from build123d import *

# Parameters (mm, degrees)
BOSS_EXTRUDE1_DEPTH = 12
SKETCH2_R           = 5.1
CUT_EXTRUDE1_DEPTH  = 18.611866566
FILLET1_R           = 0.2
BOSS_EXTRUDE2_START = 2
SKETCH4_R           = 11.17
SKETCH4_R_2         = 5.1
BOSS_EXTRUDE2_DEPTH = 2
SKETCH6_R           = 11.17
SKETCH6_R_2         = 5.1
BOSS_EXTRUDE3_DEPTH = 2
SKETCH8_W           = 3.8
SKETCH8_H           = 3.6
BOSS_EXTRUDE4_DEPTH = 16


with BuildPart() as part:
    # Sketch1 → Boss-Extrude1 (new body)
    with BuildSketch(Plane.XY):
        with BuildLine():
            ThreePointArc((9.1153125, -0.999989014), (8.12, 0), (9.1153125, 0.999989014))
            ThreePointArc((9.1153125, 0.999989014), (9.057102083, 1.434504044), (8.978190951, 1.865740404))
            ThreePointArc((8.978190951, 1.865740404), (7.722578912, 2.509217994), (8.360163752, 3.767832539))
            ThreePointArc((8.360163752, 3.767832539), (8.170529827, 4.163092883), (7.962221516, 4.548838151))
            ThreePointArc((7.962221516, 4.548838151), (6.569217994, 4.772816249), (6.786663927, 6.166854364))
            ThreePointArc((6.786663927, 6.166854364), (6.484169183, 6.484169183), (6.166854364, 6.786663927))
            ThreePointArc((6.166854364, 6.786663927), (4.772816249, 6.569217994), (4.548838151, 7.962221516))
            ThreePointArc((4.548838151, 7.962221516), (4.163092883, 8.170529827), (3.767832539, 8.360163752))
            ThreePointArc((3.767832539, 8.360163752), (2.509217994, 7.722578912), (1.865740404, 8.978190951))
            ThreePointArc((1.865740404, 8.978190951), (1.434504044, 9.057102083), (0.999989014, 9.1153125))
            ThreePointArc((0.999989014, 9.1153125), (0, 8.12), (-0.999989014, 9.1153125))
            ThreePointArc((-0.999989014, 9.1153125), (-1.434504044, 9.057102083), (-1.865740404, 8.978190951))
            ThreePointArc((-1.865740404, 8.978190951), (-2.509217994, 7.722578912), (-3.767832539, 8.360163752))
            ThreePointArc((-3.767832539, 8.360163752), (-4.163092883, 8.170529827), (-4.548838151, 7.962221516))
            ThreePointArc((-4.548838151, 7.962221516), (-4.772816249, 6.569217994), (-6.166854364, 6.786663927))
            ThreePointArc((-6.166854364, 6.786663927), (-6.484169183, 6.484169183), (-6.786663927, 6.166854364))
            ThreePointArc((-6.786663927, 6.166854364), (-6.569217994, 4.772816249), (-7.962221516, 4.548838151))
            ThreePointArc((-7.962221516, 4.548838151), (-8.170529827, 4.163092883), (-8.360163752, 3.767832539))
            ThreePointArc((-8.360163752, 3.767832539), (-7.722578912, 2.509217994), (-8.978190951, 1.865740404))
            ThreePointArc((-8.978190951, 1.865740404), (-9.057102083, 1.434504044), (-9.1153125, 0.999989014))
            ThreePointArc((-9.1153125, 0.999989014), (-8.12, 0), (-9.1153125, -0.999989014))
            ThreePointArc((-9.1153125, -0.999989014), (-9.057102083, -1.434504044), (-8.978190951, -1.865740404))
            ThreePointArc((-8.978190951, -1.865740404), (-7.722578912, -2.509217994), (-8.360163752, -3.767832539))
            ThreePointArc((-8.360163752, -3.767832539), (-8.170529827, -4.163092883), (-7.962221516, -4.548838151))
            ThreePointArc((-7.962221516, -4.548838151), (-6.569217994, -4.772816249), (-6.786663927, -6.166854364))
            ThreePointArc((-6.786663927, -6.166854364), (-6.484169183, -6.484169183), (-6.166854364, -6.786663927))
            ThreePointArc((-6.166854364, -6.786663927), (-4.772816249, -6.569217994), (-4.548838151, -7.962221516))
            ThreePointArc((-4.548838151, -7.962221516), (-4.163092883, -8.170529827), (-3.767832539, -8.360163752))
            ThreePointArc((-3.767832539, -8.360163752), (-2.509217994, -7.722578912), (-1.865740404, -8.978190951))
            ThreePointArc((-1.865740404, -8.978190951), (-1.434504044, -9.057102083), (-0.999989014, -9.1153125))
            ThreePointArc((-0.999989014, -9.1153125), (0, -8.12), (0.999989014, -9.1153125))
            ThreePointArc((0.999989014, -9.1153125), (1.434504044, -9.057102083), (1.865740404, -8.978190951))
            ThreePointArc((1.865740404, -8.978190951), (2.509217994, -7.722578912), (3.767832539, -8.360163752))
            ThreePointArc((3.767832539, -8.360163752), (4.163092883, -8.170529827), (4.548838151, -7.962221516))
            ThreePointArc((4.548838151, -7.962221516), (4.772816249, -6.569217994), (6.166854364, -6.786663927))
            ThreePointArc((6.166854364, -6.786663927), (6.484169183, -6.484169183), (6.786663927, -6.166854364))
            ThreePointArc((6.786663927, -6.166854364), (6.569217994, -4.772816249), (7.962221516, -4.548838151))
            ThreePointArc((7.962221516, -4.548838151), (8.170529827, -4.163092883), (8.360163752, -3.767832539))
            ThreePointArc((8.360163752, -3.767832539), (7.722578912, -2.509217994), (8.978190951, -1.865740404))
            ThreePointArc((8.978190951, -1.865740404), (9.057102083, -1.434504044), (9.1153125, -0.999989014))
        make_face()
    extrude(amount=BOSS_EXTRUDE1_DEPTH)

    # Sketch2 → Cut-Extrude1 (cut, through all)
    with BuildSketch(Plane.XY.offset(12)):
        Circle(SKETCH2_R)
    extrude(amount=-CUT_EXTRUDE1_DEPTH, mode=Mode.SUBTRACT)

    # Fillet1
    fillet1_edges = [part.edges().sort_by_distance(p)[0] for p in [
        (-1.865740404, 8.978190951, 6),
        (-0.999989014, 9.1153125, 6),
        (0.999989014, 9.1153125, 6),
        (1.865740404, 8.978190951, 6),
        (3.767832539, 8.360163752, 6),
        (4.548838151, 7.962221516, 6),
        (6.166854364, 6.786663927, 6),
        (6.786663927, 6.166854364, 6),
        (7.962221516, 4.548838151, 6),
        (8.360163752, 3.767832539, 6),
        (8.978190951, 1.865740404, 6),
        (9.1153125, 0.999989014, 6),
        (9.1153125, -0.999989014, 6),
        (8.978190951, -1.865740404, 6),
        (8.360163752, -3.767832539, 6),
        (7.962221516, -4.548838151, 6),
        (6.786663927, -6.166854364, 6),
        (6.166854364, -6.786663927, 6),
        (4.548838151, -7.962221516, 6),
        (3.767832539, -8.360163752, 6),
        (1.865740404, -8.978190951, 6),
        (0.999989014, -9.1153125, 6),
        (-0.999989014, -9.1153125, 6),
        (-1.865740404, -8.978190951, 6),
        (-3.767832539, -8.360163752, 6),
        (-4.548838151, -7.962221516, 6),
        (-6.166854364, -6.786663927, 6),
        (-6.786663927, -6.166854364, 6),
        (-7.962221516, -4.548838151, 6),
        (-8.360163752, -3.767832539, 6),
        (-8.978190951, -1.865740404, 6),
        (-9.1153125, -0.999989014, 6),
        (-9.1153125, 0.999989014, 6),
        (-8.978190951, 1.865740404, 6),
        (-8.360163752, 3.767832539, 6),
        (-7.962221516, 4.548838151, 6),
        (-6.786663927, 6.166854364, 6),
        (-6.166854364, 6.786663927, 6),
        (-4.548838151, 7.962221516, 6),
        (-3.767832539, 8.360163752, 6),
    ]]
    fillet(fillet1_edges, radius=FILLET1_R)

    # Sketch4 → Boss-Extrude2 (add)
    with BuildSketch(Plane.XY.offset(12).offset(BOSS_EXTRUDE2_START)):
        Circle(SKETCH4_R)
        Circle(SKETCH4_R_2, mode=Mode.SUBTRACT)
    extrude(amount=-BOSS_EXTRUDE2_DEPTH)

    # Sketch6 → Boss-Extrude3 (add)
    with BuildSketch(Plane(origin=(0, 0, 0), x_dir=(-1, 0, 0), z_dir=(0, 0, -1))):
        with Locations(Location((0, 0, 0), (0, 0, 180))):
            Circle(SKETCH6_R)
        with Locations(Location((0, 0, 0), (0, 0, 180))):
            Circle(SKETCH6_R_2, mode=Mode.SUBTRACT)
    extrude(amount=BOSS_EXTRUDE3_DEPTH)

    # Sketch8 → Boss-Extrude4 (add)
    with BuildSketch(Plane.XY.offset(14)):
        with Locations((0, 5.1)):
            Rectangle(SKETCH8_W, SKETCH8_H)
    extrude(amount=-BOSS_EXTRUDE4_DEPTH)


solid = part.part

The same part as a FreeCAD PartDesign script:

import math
import FreeCAD as App
import Part
import Sketcher
from FreeCAD import Vector


def edges_at(feature, points):
    """Names of the edges that pass closest to the given points."""
    edges = feature.Shape.Edges
    near = lambda p: min(range(len(edges)), key=lambda i: edges[i].distToShape(Part.Vertex(*p))[0])
    return sorted({f"Edge{near(p) + 1}" for p in points})

doc = App.newDocument("Part")
params = doc.addObject("Spreadsheet::Sheet", "Params")
for row, (alias, value) in enumerate([
    ("sketch1_radius", "1 mm"),
    ("sketch1_radius2", "9.17 mm"),
    ("pad1_length", "12 mm"),
    ("sketch2_diameter", "10.2 mm"),
    ("fillet_radius", "0.2 mm"),
    ("sketch3_diameter", "10.2 mm"),
    ("sketch3_diameter2", "22.34 mm"),
    ("pad2_length", "2 mm"),
    ("sketch4_diameter", "10.2 mm"),
    ("sketch4_diameter2", "22.34 mm"),
    ("pad3_length", "2 mm"),
    ("sketch5_width", "3.8 mm"),
    ("sketch5_height", "3.6 mm"),
    ("pad4_length", "16 mm"),
], start=1):
    params.set(f"A{row}", alias)
    params.set(f"B{row}", "=" + value)
    params.setAlias(f"B{row}", alias)

body = doc.addObject("PartDesign::Body", "Body")

# Sketch on XY plane
sketch1 = body.newObject("Sketcher::SketchObject", "Sketch")
sketch1.AttachmentSupport = (doc.getObject("XY_Plane"), [""])
sketch1.MapMode = "FlatFace"
sketch1.addGeometry([
    Part.ArcOfCircle(Part.Circle(Vector(9.1, 0, 0), Vector(0, 0, 1), 1), math.radians(90), math.radians(270)),  # 0
    Part.ArcOfCircle(Part.Circle(Vector(0, 0, 0), Vector(0, 0, 1), 9.2), math.radians(6.26), math.radians(11.74)),  # 1
    Part.ArcOfCircle(Part.Circle(Vector(8.7, 2.8, 0), Vector(0, 0, 1), 1), math.radians(108), math.radians(288)),  # 2
    Part.ArcOfCircle(Part.Circle(Vector(0, 0, 0), Vector(0, 0, 1), 9.2), math.radians(24.26), math.radians(29.74)),  # 3
    Part.ArcOfCircle(Part.Circle(Vector(7.4, 5.4, 0), Vector(0, 0, 1), 1), math.radians(126), math.radians(306)),  # 4
    Part.ArcOfCircle(Part.Circle(Vector(0, 0, 0), Vector(0, 0, 1), 9.2), math.radians(42.26), math.radians(47.74)),  # 5
    Part.ArcOfCircle(Part.Circle(Vector(5.4, 7.4, 0), Vector(0, 0, 1), 1), math.radians(144), math.radians(324)),  # 6
    Part.ArcOfCircle(Part.Circle(Vector(0, 0, 0), Vector(0, 0, 1), 9.2), math.radians(60.26), math.radians(65.74)),  # 7
    Part.ArcOfCircle(Part.Circle(Vector(2.8, 8.7, 0), Vector(0, 0, 1), 1), math.radians(162), math.radians(342)),  # 8
    Part.ArcOfCircle(Part.Circle(Vector(0, 0, 0), Vector(0, 0, 1), 9.2), math.radians(78.26), math.radians(83.74)),  # 9
    Part.ArcOfCircle(Part.Circle(Vector(0, 9.1, 0), Vector(0, 0, 1), 1), math.radians(-180), math.radians(0)),  # 10
    Part.ArcOfCircle(Part.Circle(Vector(0, 0, 0), Vector(0, 0, 1), 9.2), math.radians(96.26), math.radians(101.74)),  # 11
    Part.ArcOfCircle(Part.Circle(Vector(-2.8, 8.7, 0), Vector(0, 0, 1), 1), math.radians(-162), math.radians(18)),  # 12
    Part.ArcOfCircle(Part.Circle(Vector(0, 0, 0), Vector(0, 0, 1), 9.2), math.radians(114.26), math.radians(119.74)),  # 13
    Part.ArcOfCircle(Part.Circle(Vector(-5.4, 7.4, 0), Vector(0, 0, 1), 1), math.radians(-144), math.radians(36)),  # 14
    Part.ArcOfCircle(Part.Circle(Vector(0, 0, 0), Vector(0, 0, 1), 9.2), math.radians(132.26), math.radians(137.74)),  # 15
    Part.ArcOfCircle(Part.Circle(Vector(-7.4, 5.4, 0), Vector(0, 0, 1), 1), math.radians(-126), math.radians(54)),  # 16
    Part.ArcOfCircle(Part.Circle(Vector(0, 0, 0), Vector(0, 0, 1), 9.2), math.radians(150.26), math.radians(155.74)),  # 17
    Part.ArcOfCircle(Part.Circle(Vector(-8.7, 2.8, 0), Vector(0, 0, 1), 1), math.radians(-108), math.radians(72)),  # 18
    Part.ArcOfCircle(Part.Circle(Vector(0, 0, 0), Vector(0, 0, 1), 9.2), math.radians(168.26), math.radians(173.74)),  # 19
    Part.ArcOfCircle(Part.Circle(Vector(-9.1, 0, 0), Vector(0, 0, 1), 1), math.radians(-90), math.radians(90)),  # 20
    Part.ArcOfCircle(Part.Circle(Vector(0, 0, 0), Vector(0, 0, 1), 9.2), math.radians(-173.74), math.radians(-168.26)),  # 21
    Part.ArcOfCircle(Part.Circle(Vector(-8.7, -2.8, 0), Vector(0, 0, 1), 1), math.radians(-72), math.radians(108)),  # 22
    Part.ArcOfCircle(Part.Circle(Vector(0, 0, 0), Vector(0, 0, 1), 9.2), math.radians(-155.74), math.radians(-150.26)),  # 23
    Part.ArcOfCircle(Part.Circle(Vector(-7.4, -5.4, 0), Vector(0, 0, 1), 1), math.radians(-54), math.radians(126)),  # 24
    Part.ArcOfCircle(Part.Circle(Vector(0, 0, 0), Vector(0, 0, 1), 9.2), math.radians(-137.74), math.radians(-132.26)),  # 25
    Part.ArcOfCircle(Part.Circle(Vector(-5.4, -7.4, 0), Vector(0, 0, 1), 1), math.radians(-36), math.radians(144)),  # 26
    Part.ArcOfCircle(Part.Circle(Vector(0, 0, 0), Vector(0, 0, 1), 9.2), math.radians(-119.74), math.radians(-114.26)),  # 27
    Part.ArcOfCircle(Part.Circle(Vector(-2.8, -8.7, 0), Vector(0, 0, 1), 1), math.radians(-18), math.radians(162)),  # 28
    Part.ArcOfCircle(Part.Circle(Vector(0, 0, 0), Vector(0, 0, 1), 9.2), math.radians(-101.74), math.radians(-96.26)),  # 29
    Part.ArcOfCircle(Part.Circle(Vector(0, -9.1, 0), Vector(0, 0, 1), 1), math.radians(0), math.radians(180)),  # 30
    Part.ArcOfCircle(Part.Circle(Vector(0, 0, 0), Vector(0, 0, 1), 9.2), math.radians(-83.74), math.radians(-78.26)),  # 31
    Part.ArcOfCircle(Part.Circle(Vector(2.8, -8.7, 0), Vector(0, 0, 1), 1), math.radians(18), math.radians(198)),  # 32
    Part.ArcOfCircle(Part.Circle(Vector(0, 0, 0), Vector(0, 0, 1), 9.2), math.radians(-65.74), math.radians(-60.26)),  # 33
    Part.ArcOfCircle(Part.Circle(Vector(5.4, -7.4, 0), Vector(0, 0, 1), 1), math.radians(36), math.radians(216)),  # 34
    Part.ArcOfCircle(Part.Circle(Vector(0, 0, 0), Vector(0, 0, 1), 9.2), math.radians(-47.74), math.radians(-42.26)),  # 35
    Part.ArcOfCircle(Part.Circle(Vector(7.4, -5.4, 0), Vector(0, 0, 1), 1), math.radians(54), math.radians(234)),  # 36
    Part.ArcOfCircle(Part.Circle(Vector(0, 0, 0), Vector(0, 0, 1), 9.2), math.radians(-29.74), math.radians(-24.26)),  # 37
    Part.ArcOfCircle(Part.Circle(Vector(8.7, -2.8, 0), Vector(0, 0, 1), 1), math.radians(72), math.radians(252)),  # 38
    Part.ArcOfCircle(Part.Circle(Vector(0, 0, 0), Vector(0, 0, 1), 9.2), math.radians(-11.74), math.radians(-6.26)),  # 39
], False)
sketch1.addConstraint([
    Sketcher.Constraint("Coincident", 0, 1, 1, 1),
    Sketcher.Constraint("Coincident", 1, 2, 2, 2),
    Sketcher.Constraint("Coincident", 2, 1, 3, 1),
    Sketcher.Constraint("Coincident", 3, 2, 4, 2),
    Sketcher.Constraint("Coincident", 4, 1, 5, 1),
    Sketcher.Constraint("Coincident", 5, 2, 6, 2),
    Sketcher.Constraint("Coincident", 6, 1, 7, 1),
    Sketcher.Constraint("Coincident", 7, 2, 8, 2),
    Sketcher.Constraint("Coincident", 8, 1, 9, 1),
    Sketcher.Constraint("Coincident", 9, 2, 10, 2),
    Sketcher.Constraint("Coincident", 10, 1, 11, 1),
    Sketcher.Constraint("Coincident", 11, 2, 12, 2),
    Sketcher.Constraint("Coincident", 12, 1, 13, 1),
    Sketcher.Constraint("Coincident", 13, 2, 14, 2),
    Sketcher.Constraint("Coincident", 14, 1, 15, 1),
    Sketcher.Constraint("Coincident", 15, 2, 16, 2),
    Sketcher.Constraint("Coincident", 16, 1, 17, 1),
    Sketcher.Constraint("Coincident", 17, 2, 18, 2),
    Sketcher.Constraint("Coincident", 18, 1, 19, 1),
    Sketcher.Constraint("Coincident", 19, 2, 20, 2),
    Sketcher.Constraint("Coincident", 20, 1, 21, 1),
    Sketcher.Constraint("Coincident", 21, 2, 22, 2),
    Sketcher.Constraint("Coincident", 22, 1, 23, 1),
    Sketcher.Constraint("Coincident", 23, 2, 24, 2),
    Sketcher.Constraint("Coincident", 24, 1, 25, 1),
    Sketcher.Constraint("Coincident", 25, 2, 26, 2),
    Sketcher.Constraint("Coincident", 26, 1, 27, 1),
    Sketcher.Constraint("Coincident", 27, 2, 28, 2),
    Sketcher.Constraint("Coincident", 28, 1, 29, 1),
    Sketcher.Constraint("Coincident", 29, 2, 30, 2),
    Sketcher.Constraint("Coincident", 30, 1, 31, 1),
    Sketcher.Constraint("Coincident", 31, 2, 32, 2),
    Sketcher.Constraint("Coincident", 32, 1, 33, 1),
    Sketcher.Constraint("Coincident", 33, 2, 34, 2),
    Sketcher.Constraint("Coincident", 34, 1, 35, 1),
    Sketcher.Constraint("Coincident", 35, 2, 36, 2),
    Sketcher.Constraint("Coincident", 36, 1, 37, 1),
    Sketcher.Constraint("Coincident", 37, 2, 38, 2),
    Sketcher.Constraint("Coincident", 38, 1, 39, 1),
    Sketcher.Constraint("Coincident", 39, 2, 0, 2),
    Sketcher.Constraint("Coincident", 1, 3, -1, 1),
    Sketcher.Constraint("Coincident", 3, 3, -1, 1),
    Sketcher.Constraint("Coincident", 5, 3, -1, 1),
    Sketcher.Constraint("Coincident", 7, 3, -1, 1),
    Sketcher.Constraint("Coincident", 9, 3, -1, 1),
    Sketcher.Constraint("Coincident", 11, 3, -1, 1),
    Sketcher.Constraint("Coincident", 13, 3, -1, 1),
    Sketcher.Constraint("Coincident", 15, 3, -1, 1),
    Sketcher.Constraint("Coincident", 17, 3, -1, 1),
    Sketcher.Constraint("Coincident", 19, 3, -1, 1),
    Sketcher.Constraint("Coincident", 21, 3, -1, 1),
    Sketcher.Constraint("Coincident", 23, 3, -1, 1),
    Sketcher.Constraint("Coincident", 25, 3, -1, 1),
    Sketcher.Constraint("Coincident", 27, 3, -1, 1),
    Sketcher.Constraint("Coincident", 29, 3, -1, 1),
    Sketcher.Constraint("Coincident", 31, 3, -1, 1),
    Sketcher.Constraint("Coincident", 33, 3, -1, 1),
    Sketcher.Constraint("Coincident", 35, 3, -1, 1),
    Sketcher.Constraint("Coincident", 37, 3, -1, 1),
    Sketcher.Constraint("Coincident", 39, 3, -1, 1),
    Sketcher.Constraint("Equal", 0, 2),
    Sketcher.Constraint("Equal", 1, 3),
    Sketcher.Constraint("Equal", 2, 4),
    Sketcher.Constraint("Equal", 3, 5),
    Sketcher.Constraint("Equal", 4, 6),
    Sketcher.Constraint("Equal", 5, 7),
    Sketcher.Constraint("Equal", 6, 8),
    Sketcher.Constraint("Equal", 7, 9),
    Sketcher.Constraint("Equal", 8, 10),
    Sketcher.Constraint("Equal", 9, 11),
    Sketcher.Constraint("Equal", 10, 12),
    Sketcher.Constraint("Equal", 11, 13),
    Sketcher.Constraint("Equal", 12, 14),
    Sketcher.Constraint("Equal", 13, 15),
    Sketcher.Constraint("Equal", 14, 16),
    Sketcher.Constraint("Equal", 15, 17),
    Sketcher.Constraint("Equal", 16, 18),
    Sketcher.Constraint("Equal", 17, 19),
    Sketcher.Constraint("Equal", 18, 20),
    Sketcher.Constraint("Equal", 19, 21),
    Sketcher.Constraint("Equal", 20, 22),
    Sketcher.Constraint("Equal", 21, 23),
    Sketcher.Constraint("Equal", 22, 24),
    Sketcher.Constraint("Equal", 23, 25),
    Sketcher.Constraint("Equal", 24, 26),
    Sketcher.Constraint("Equal", 25, 27),
    Sketcher.Constraint("Equal", 26, 28),
    Sketcher.Constraint("Equal", 27, 29),
    Sketcher.Constraint("Equal", 28, 30),
    Sketcher.Constraint("Equal", 29, 31),
    Sketcher.Constraint("Equal", 30, 32),
    Sketcher.Constraint("Equal", 31, 33),
    Sketcher.Constraint("Equal", 32, 34),
    Sketcher.Constraint("Equal", 33, 35),
    Sketcher.Constraint("Equal", 34, 36),
    Sketcher.Constraint("Equal", 35, 37),
    Sketcher.Constraint("Equal", 36, 38),
    Sketcher.Constraint("Equal", 37, 39),
    Sketcher.Constraint("Symmetric", 0, 3, 20, 3, -1, 1),
    Sketcher.Constraint("Symmetric", 2, 3, 22, 3, -1, 1),
    Sketcher.Constraint("Symmetric", 4, 3, 24, 3, -1, 1),
    Sketcher.Constraint("Symmetric", 6, 3, 26, 3, -1, 1),
    Sketcher.Constraint("Symmetric", 8, 3, 28, 3, -1, 1),
    Sketcher.Constraint("Symmetric", 10, 3, 30, 3, -1, 1),
    Sketcher.Constraint("Symmetric", 12, 3, 32, 3, -1, 1),
    Sketcher.Constraint("Symmetric", 14, 3, 34, 3, -1, 1),
    Sketcher.Constraint("Symmetric", 16, 3, 36, 3, -1, 1),
    Sketcher.Constraint("Symmetric", 18, 3, 38, 3, -1, 1),
    Sketcher.Constraint("Symmetric", 8, 3, 12, 3, -2),
    Sketcher.Constraint("Symmetric", 6, 3, 14, 3, -2),
    Sketcher.Constraint("Symmetric", 4, 3, 16, 3, -2),
    Sketcher.Constraint("Symmetric", 2, 3, 18, 3, -2),
    Sketcher.Constraint("PointOnObject", 0, 3, -1),
    Sketcher.Constraint("PointOnObject", 10, 3, -2),
    Sketcher.Constraint("Radius", 0, 1.0),
    Sketcher.Constraint("Radius", 1, 9.17),
    Sketcher.Constraint("DistanceX", -1, 1, 0, 3, 9.12),
    Sketcher.Constraint("DistanceY", -1, 1, 10, 3, 9.12),
    Sketcher.Constraint("DistanceY", -1, 1, 4, 3, 5.360602),
    Sketcher.Constraint("DistanceX", -1, 1, 6, 3, 5.360602),
    Sketcher.Constraint("DistanceX", -1, 1, 1, 2, 8.978191),
    Sketcher.Constraint("DistanceX", -1, 1, 3, 2, 7.962222),
    Sketcher.Constraint("DistanceX", -1, 1, 6, 1, 4.548838),
    Sketcher.Constraint("DistanceX", -1, 1, 8, 1, 1.86574),
    Sketcher.Constraint("DistanceX", -1, 1, 2, 3, 8.673635),
    Sketcher.Constraint("DistanceX", -1, 1, 8, 3, 2.818235),
])
sketch1.setExpression("Constraints[114]", "Params.sketch1_radius")
sketch1.setExpression("Constraints[115]", "Params.sketch1_radius2")
pad1 = body.newObject("PartDesign::Pad", "Pad")
pad1.Profile = sketch1
pad1.setExpression("Length", "Params.pad1_length")

# Sketch on XY plane
sketch2 = body.newObject("Sketcher::SketchObject", "Sketch001")
sketch2.AttachmentSupport = (doc.getObject("XY_Plane"), [""])
sketch2.MapMode = "FlatFace"
sketch2.AttachmentOffset = App.Placement(Vector(0, 0, 12), App.Rotation())
sketch2.addGeometry(Part.Circle(Vector(0, 0, 0), Vector(0, 0, 1), 5), False)
sketch2.addConstraint([
    Sketcher.Constraint("Coincident", 0, 3, -1, 1),
    Sketcher.Constraint("Diameter", 0, 10.2),
])
sketch2.setExpression("Constraints[1]", "Params.sketch2_diameter")
pocket1 = body.newObject("PartDesign::Pocket", "Pocket")
pocket1.Profile = sketch2
pocket1.Type = "ThroughAll"
doc.recompute()

fillet = body.newObject("PartDesign::Fillet", "Fillet")
fillet.Base = (pocket1, edges_at(pocket1, [
    (-1.866, 8.978, 6),
    (-1, 9.115, 6),
    (1, 9.115, 6),
    (1.866, 8.978, 6),
    (3.768, 8.36, 6),
    (4.549, 7.962, 6),
    (6.167, 6.787, 6),
    (6.787, 6.167, 6),
    (7.962, 4.549, 6),
    (8.36, 3.768, 6),
    (8.978, 1.866, 6),
    (9.115, 1, 6),
    (9.115, -1, 6),
    (8.978, -1.866, 6),
    (8.36, -3.768, 6),
    (7.962, -4.549, 6),
    (6.787, -6.167, 6),
    (6.167, -6.787, 6),
    (4.549, -7.962, 6),
    (3.768, -8.36, 6),
    (1.866, -8.978, 6),
    (1, -9.115, 6),
    (-1, -9.115, 6),
    (-1.866, -8.978, 6),
    (-3.768, -8.36, 6),
    (-4.549, -7.962, 6),
    (-6.167, -6.787, 6),
    (-6.787, -6.167, 6),
    (-7.962, -4.549, 6),
    (-8.36, -3.768, 6),
    (-8.978, -1.866, 6),
    (-9.115, -1, 6),
    (-9.115, 1, 6),
    (-8.978, 1.866, 6),
    (-8.36, 3.768, 6),
    (-7.962, 4.549, 6),
    (-6.787, 6.167, 6),
    (-6.167, 6.787, 6),
    (-4.549, 7.962, 6),
    (-3.768, 8.36, 6),
]))
fillet.setExpression("Radius", "Params.fillet_radius")

# Sketch on XY plane
sketch3 = body.newObject("Sketcher::SketchObject", "Sketch002")
sketch3.AttachmentSupport = (doc.getObject("XY_Plane"), [""])
sketch3.MapMode = "FlatFace"
sketch3.AttachmentOffset = App.Placement(Vector(0, 0, 14), App.Rotation())
sketch3.addGeometry([
    Part.Circle(Vector(0, 0, 0), Vector(0, 0, 1), 11),
    Part.Circle(Vector(0, 0, 0), Vector(0, 0, 1), 5),
], False)
sketch3.addConstraint([
    Sketcher.Constraint("Coincident", 0, 3, -1, 1),
    Sketcher.Constraint("Coincident", 1, 3, -1, 1),
    Sketcher.Constraint("Diameter", 1, 10.2),
    Sketcher.Constraint("Diameter", 0, 22.34),
])
sketch3.setExpression("Constraints[2]", "Params.sketch3_diameter")
sketch3.setExpression("Constraints[3]", "Params.sketch3_diameter2")
pad2 = body.newObject("PartDesign::Pad", "Pad001")
pad2.Profile = sketch3
pad2.setExpression("Length", "Params.pad2_length")
pad2.Reversed = True

# Sketch on XY plane
sketch4 = body.newObject("Sketcher::SketchObject", "Sketch003")
sketch4.AttachmentSupport = (doc.getObject("XY_Plane"), [""])
sketch4.MapMode = "FlatFace"
sketch4.addGeometry([
    Part.Circle(Vector(0, 0, 0), Vector(0, 0, 1), 11),
    Part.Circle(Vector(0, 0, 0), Vector(0, 0, 1), 5),
], False)
sketch4.addConstraint([
    Sketcher.Constraint("Coincident", 0, 3, -1, 1),
    Sketcher.Constraint("Coincident", 1, 3, -1, 1),
    Sketcher.Constraint("Diameter", 1, 10.2),
    Sketcher.Constraint("Diameter", 0, 22.34),
])
sketch4.setExpression("Constraints[2]", "Params.sketch4_diameter")
sketch4.setExpression("Constraints[3]", "Params.sketch4_diameter2")
pad3 = body.newObject("PartDesign::Pad", "Pad002")
pad3.Profile = sketch4
pad3.setExpression("Length", "Params.pad3_length")
pad3.Reversed = True

# Sketch on XY plane
sketch5 = body.newObject("Sketcher::SketchObject", "Sketch004")
sketch5.AttachmentSupport = (doc.getObject("XY_Plane"), [""])
sketch5.MapMode = "FlatFace"
sketch5.AttachmentOffset = App.Placement(Vector(0, 0, 14), App.Rotation())
sketch5.addGeometry([
    Part.LineSegment(Vector(-1.9, 6.9, 0), Vector(-1.9, 3.3, 0)),
    Part.LineSegment(Vector(-1.9, 3.3, 0), Vector(1.9, 3.3, 0)),
    Part.LineSegment(Vector(1.9, 3.3, 0), Vector(1.9, 6.9, 0)),
    Part.LineSegment(Vector(1.9, 6.9, 0), Vector(-1.9, 6.9, 0)),
], False)
sketch5.addConstraint([
    Sketcher.Constraint("Coincident", 0, 2, 1, 1),
    Sketcher.Constraint("Coincident", 1, 2, 2, 1),
    Sketcher.Constraint("Coincident", 2, 2, 3, 1),
    Sketcher.Constraint("Coincident", 3, 2, 0, 1),
    Sketcher.Constraint("Vertical", 0),
    Sketcher.Constraint("Horizontal", 1),
    Sketcher.Constraint("Vertical", 2),
    Sketcher.Constraint("Horizontal", 3),
    Sketcher.Constraint("DistanceX", 1, 1, 1, 2, 3.8),
    Sketcher.Constraint("DistanceY", 0, 2, 0, 1, 3.6),
    Sketcher.Constraint("DistanceX", 0, 2, -1, 1, 1.9),
    Sketcher.Constraint("DistanceY", -1, 1, 0, 2, 3.3),
])
sketch5.setExpression("Constraints[8]", "Params.sketch5_width")
sketch5.setExpression("Constraints[9]", "Params.sketch5_height")
pad4 = body.newObject("PartDesign::Pad", "Pad003")
pad4.Profile = sketch5
pad4.setExpression("Length", "Params.pad4_length")
pad4.Reversed = True

doc.recompute()
